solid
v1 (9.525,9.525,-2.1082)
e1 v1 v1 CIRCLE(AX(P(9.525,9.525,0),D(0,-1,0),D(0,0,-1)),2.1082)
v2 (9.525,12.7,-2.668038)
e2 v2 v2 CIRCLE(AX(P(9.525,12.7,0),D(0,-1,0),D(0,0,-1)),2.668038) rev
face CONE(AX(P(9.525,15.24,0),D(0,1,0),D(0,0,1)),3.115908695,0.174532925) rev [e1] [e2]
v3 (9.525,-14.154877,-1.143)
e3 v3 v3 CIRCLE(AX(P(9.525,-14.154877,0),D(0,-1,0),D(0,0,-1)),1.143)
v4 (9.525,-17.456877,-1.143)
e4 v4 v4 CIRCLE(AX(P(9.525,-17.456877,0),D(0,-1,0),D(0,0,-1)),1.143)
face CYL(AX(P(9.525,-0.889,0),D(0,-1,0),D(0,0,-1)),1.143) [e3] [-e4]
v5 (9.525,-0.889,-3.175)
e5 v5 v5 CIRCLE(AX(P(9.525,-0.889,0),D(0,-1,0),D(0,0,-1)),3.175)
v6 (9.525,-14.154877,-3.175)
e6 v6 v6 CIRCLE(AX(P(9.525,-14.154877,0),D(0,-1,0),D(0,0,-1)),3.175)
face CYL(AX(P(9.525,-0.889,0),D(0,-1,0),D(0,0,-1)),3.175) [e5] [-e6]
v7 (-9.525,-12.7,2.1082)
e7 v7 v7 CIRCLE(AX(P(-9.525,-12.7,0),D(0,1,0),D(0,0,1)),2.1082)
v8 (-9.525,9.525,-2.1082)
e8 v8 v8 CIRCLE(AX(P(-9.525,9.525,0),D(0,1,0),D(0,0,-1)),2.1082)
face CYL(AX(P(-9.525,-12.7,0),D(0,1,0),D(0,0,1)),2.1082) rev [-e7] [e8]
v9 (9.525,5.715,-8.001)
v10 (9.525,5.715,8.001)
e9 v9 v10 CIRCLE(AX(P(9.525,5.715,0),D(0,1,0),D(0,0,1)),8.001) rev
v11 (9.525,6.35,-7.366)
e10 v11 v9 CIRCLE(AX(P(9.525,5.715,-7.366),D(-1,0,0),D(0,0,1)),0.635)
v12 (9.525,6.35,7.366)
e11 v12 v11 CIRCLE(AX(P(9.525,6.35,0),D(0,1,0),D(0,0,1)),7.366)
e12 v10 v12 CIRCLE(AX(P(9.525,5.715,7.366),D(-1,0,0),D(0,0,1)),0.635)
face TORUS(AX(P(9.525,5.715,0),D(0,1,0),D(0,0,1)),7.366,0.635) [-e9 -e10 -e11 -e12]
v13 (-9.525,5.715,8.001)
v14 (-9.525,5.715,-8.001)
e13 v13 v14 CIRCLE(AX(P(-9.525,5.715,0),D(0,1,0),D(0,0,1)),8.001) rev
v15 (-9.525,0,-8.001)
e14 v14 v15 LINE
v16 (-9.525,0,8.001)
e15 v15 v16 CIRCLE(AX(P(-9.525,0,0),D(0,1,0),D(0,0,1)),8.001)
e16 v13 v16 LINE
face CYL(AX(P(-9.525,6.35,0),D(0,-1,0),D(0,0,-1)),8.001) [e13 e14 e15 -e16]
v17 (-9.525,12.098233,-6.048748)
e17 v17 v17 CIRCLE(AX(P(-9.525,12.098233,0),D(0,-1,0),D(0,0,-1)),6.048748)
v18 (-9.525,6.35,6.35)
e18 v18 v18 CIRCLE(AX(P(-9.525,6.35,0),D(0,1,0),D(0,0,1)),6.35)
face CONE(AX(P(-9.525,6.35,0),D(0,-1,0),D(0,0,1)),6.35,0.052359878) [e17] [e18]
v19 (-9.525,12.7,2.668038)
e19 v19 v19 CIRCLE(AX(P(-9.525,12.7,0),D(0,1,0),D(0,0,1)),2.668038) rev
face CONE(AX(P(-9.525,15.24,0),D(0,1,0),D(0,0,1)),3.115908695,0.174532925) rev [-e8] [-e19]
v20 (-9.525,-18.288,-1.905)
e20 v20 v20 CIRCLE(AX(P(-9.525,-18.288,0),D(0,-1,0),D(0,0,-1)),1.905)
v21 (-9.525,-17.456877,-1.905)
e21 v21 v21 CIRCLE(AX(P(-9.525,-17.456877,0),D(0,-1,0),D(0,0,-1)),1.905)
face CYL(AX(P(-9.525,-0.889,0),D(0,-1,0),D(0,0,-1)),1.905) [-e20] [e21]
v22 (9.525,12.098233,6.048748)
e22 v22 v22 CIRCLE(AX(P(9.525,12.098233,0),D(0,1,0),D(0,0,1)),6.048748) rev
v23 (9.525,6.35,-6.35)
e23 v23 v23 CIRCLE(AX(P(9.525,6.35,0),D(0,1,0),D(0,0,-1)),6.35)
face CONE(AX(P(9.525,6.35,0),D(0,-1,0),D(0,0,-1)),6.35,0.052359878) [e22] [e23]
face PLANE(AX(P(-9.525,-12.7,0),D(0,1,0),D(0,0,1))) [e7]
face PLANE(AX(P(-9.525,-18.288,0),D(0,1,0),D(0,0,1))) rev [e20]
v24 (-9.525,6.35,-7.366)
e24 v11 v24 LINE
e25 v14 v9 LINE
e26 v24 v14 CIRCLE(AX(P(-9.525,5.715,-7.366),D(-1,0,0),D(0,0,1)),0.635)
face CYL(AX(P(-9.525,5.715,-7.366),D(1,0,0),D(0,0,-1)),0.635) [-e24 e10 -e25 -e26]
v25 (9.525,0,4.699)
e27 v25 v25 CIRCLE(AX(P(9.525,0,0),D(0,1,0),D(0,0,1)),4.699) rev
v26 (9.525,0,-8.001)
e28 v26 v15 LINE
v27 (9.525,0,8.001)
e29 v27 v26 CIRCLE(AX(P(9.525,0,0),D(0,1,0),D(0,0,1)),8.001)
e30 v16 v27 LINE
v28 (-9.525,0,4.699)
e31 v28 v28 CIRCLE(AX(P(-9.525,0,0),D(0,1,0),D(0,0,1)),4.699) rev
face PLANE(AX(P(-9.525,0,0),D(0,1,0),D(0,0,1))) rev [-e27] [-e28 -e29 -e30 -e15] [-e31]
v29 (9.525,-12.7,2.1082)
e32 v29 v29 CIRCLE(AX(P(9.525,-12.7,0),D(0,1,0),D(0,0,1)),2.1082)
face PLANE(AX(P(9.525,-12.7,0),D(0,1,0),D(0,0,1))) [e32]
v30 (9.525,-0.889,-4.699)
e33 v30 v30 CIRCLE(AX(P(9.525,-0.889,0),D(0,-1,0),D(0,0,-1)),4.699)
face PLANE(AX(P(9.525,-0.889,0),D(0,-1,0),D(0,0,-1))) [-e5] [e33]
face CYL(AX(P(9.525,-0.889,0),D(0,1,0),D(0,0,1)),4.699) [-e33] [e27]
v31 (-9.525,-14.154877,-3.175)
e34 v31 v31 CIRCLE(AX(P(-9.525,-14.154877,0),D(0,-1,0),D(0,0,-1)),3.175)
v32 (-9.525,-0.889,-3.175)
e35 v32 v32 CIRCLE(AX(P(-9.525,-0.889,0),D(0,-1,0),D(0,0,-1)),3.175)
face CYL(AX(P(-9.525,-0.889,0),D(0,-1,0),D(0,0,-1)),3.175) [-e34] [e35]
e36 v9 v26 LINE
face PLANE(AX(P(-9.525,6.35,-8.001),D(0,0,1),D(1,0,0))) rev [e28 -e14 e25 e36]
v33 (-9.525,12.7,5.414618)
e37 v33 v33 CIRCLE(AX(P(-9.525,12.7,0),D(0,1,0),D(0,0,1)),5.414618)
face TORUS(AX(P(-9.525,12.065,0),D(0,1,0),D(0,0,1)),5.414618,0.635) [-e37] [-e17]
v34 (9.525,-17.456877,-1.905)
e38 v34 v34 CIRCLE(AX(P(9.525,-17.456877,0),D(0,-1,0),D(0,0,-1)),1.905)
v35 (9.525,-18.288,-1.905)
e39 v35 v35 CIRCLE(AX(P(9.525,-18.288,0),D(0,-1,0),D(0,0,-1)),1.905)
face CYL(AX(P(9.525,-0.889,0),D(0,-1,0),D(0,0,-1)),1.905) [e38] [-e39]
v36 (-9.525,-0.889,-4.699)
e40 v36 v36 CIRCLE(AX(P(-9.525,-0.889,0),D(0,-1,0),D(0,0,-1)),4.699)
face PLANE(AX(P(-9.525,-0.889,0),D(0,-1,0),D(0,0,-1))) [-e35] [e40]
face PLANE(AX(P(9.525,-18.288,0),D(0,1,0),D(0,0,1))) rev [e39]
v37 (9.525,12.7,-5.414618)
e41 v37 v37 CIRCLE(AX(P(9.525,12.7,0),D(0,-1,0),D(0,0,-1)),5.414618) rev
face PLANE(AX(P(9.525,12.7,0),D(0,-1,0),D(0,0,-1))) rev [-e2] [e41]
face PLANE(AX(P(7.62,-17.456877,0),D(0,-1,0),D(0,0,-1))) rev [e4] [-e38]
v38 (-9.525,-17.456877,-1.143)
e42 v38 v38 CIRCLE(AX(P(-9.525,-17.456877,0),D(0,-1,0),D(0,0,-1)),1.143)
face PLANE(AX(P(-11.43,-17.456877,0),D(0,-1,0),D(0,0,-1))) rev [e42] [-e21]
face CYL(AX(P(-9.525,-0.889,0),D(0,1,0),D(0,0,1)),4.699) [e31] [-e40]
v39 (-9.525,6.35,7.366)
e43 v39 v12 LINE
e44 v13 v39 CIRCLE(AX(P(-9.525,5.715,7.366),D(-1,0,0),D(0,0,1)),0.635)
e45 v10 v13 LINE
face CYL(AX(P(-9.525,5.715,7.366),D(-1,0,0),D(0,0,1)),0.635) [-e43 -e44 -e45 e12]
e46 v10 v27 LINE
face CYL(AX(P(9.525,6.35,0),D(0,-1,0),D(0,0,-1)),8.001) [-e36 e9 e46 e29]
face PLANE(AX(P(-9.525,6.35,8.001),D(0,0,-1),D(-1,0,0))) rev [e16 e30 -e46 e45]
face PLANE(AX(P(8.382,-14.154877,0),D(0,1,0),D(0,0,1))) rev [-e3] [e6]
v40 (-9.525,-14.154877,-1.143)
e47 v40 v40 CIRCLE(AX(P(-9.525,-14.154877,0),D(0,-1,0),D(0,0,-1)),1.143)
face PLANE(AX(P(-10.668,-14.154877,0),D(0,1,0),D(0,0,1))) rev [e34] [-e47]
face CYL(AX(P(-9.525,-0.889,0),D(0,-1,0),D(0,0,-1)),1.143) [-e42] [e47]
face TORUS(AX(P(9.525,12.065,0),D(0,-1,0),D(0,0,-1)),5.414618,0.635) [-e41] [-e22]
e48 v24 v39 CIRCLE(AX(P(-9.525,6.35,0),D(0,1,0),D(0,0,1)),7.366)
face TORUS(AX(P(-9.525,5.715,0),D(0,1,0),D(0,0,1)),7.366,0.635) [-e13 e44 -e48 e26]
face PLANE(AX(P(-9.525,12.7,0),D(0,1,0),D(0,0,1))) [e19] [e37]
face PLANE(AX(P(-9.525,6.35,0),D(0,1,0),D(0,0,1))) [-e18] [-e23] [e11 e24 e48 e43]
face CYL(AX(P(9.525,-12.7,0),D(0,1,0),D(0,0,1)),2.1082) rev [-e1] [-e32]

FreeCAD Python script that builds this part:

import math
import FreeCAD as App
import Part
import Sketcher
from FreeCAD import Vector
Q = App.Units.Quantity


def edges_at(feature, points):
    """Names of the edges that pass closest to the given points."""
    edges = feature.Shape.Edges
    near = lambda p: min(range(len(edges)), key=lambda i: edges[i].distToShape(Part.Vertex(*p))[0])
    return sorted({f"Edge{near(p) + 1}" for p in points})

doc = App.newDocument("Part")
body = doc.addObject("PartDesign::Body", "Body")

sketch1 = body.newObject("Sketcher::SketchObject", "Sketch")
sketch1.AttachmentSupport = (doc.getObject("XZ_Plane"), [""])
sketch1.MapMode = "FlatFace"
sketch1.addGeometry(Part.LineSegment(Vector(9.525, -8.001, 0), Vector(-9.525, -8.001, 0)), False)
sketch1.addGeometry(Part.ArcOfCircle(Part.Circle(Vector(-9.525, 0, 0), Vector(0, 0, 1), 8.001), math.radians(90), math.radians(270)), False)
sketch1.addGeometry(Part.LineSegment(Vector(-9.525, 8.001, 0), Vector(9.525, 8.001, 0)), False)
sketch1.addGeometry(Part.ArcOfCircle(Part.Circle(Vector(9.525, 0, 0), Vector(0, 0, 1), 8.001), math.radians(-90), math.radians(90)), False)
sketch1.addConstraint(Sketcher.Constraint("Tangent", 0, 2, 1, 2))
sketch1.addConstraint(Sketcher.Constraint("Tangent", 1, 1, 2, 1))
sketch1.addConstraint(Sketcher.Constraint("Tangent", 2, 2, 3, 2))
sketch1.addConstraint(Sketcher.Constraint("Tangent", 3, 1, 0, 1))
sketch1.addConstraint(Sketcher.Constraint("Horizontal", 0))
sketch1.addConstraint(Sketcher.Constraint("Horizontal", 2))
sketch1.addConstraint(Sketcher.Constraint("Symmetric", 1, 3, 3, 3, -1, 1))
sketch1.addConstraint(Sketcher.Constraint("Radius", 1, Q("0.315 in")))
sketch1.addConstraint(Sketcher.Constraint("DistanceX", 0, 2, 0, 1, Q("0.75 in")))
pad1 = body.newObject("PartDesign::Pad", "Pad")
pad1.Profile = sketch1
pad1.Length = Q("0.25 in")
pad1.Reversed = True

sketch2 = body.newObject("Sketcher::SketchObject", "Sketch001")
sketch2.AttachmentSupport = (doc.getObject("XZ_Plane"), [""])
sketch2.MapMode = "FlatFace"
sketch2.AttachmentOffset = App.Placement(Vector(0, 0, -0.25 * 25.4), App.Rotation())
sketch2.addGeometry(Part.Circle(Vector(-9.525, 0, 0), Vector(0, 0, 1), 6.35), False)
sketch2.addGeometry(Part.Circle(Vector(9.525, 0, 0), Vector(0, 0, 1), 6.35), False)
sketch2.addConstraint(Sketcher.Constraint("Equal", 0, 1))
sketch2.addConstraint(Sketcher.Constraint("Symmetric", 0, 3, 1, 3, -1, 1))
sketch2.addConstraint(Sketcher.Constraint("PointOnObject", 0, 3, -1))
sketch2.addConstraint(Sketcher.Constraint("Diameter", 0, Q("0.5 in")))
sketch2.addConstraint(Sketcher.Constraint("DistanceX", 0, 3, 1, 3, Q("0.75 in")))
pad2 = body.newObject("PartDesign::Pad", "Pad001")
pad2.Profile = sketch2
pad2.Length = Q("0.25 in")
pad2.Reversed = True
pad2.TaperAngle = -3

sketch3 = body.newObject("Sketcher::SketchObject", "Sketch002")
sketch3.AttachmentSupport = (doc.getObject("XZ_Plane"), [""])
sketch3.MapMode = "FlatFace"
sketch3.addGeometry(Part.Circle(Vector(-9.525, 0, 0), Vector(0, 0, 1), 4.699), False)
sketch3.addGeometry(Part.Circle(Vector(9.525, 0, 0), Vector(0, 0, 1), 4.699), False)
sketch3.addConstraint(Sketcher.Constraint("Equal", 0, 1))
sketch3.addConstraint(Sketcher.Constraint("Symmetric", 0, 3, 1, 3, -1, 1))
sketch3.addConstraint(Sketcher.Constraint("PointOnObject", 0, 3, -1))
sketch3.addConstraint(Sketcher.Constraint("Diameter", 0, Q("0.37 in")))
sketch3.addConstraint(Sketcher.Constraint("DistanceX", 0, 3, 1, 3, Q("0.75 in")))
pad3 = body.newObject("PartDesign::Pad", "Pad002")
pad3.Profile = sketch3
pad3.Length = Q("0.035 in")

sketch4 = body.newObject("Sketcher::SketchObject", "Sketch003")
sketch4.AttachmentSupport = (doc.getObject("XY_Plane"), [""])
sketch4.MapMode = "FlatFace"
sketch4.addGeometry(Part.LineSegment(Vector(9.525, -18.288, 0), Vector(9.525, -0.889, 0)), False)
sketch4.addGeometry(Part.LineSegment(Vector(9.525, -0.889, 0), Vector(6.35, -0.889, 0)), False)
sketch4.addGeometry(Part.LineSegment(Vector(6.35, -0.889, 0), Vector(6.35, -14.154877, 0)), False)
sketch4.addGeometry(Part.LineSegment(Vector(6.35, -14.154877, 0), Vector(8.382, -14.154877, 0)), False)
sketch4.addGeometry(Part.LineSegment(Vector(8.382, -14.154877, 0), Vector(8.382, -17.456877, 0)), False)
sketch4.addGeometry(Part.LineSegment(Vector(8.382, -17.456877, 0), Vector(7.62, -17.456877, 0)), False)
sketch4.addGeometry(Part.LineSegment(Vector(7.62, -17.456877, 0), Vector(7.62, -18.288, 0)), False)
sketch4.addGeometry(Part.LineSegment(Vector(7.62, -18.288, 0), Vector(9.525, -18.288, 0)), False)
sketch4.addGeometry(Part.LineSegment(Vector(9.525, -18.288, 0), Vector(9.525, -0.889, 0)), True)
sketch4.addConstraint(Sketcher.Constraint("Coincident", 0, 2, 1, 1))
sketch4.addConstraint(Sketcher.Constraint("Coincident", 1, 2, 2, 1))
sketch4.addConstraint(Sketcher.Constraint("Coincident", 2, 2, 3, 1))
sketch4.addConstraint(Sketcher.Constraint("Coincident", 3, 2, 4, 1))
sketch4.addConstraint(Sketcher.Constraint("Coincident", 4, 2, 5, 1))
sketch4.addConstraint(Sketcher.Constraint("Coincident", 5, 2, 6, 1))
sketch4.addConstraint(Sketcher.Constraint("Coincident", 6, 2, 7, 1))
sketch4.addConstraint(Sketcher.Constraint("Coincident", 7, 2, 0, 1))
sketch4.addConstraint(Sketcher.Constraint("Vertical", 0))
sketch4.addConstraint(Sketcher.Constraint("Horizontal", 1))
sketch4.addConstraint(Sketcher.Constraint("Vertical", 2))
sketch4.addConstraint(Sketcher.Constraint("Horizontal", 3))
sketch4.addConstraint(Sketcher.Constraint("Vertical", 4))
sketch4.addConstraint(Sketcher.Constraint("Horizontal", 5))
sketch4.addConstraint(Sketcher.Constraint("Vertical", 6))
sketch4.addConstraint(Sketcher.Constraint("Horizontal", 7))
sketch4.addConstraint(Sketcher.Constraint("Vertical", 8))
sketch4.addConstraint(Sketcher.Constraint("Coincident", 8, 1, 7, 2))
sketch4.addConstraint(Sketcher.Constraint("Horizontal", 1, 2, 8, 2))
sketch4.addConstraint(Sketcher.Constraint("DistanceX", 3, 1, 3, 2, Q("0.08 in")))
sketch4.addConstraint(Sketcher.Constraint("DistanceX", 5, 2, 5, 1, Q("0.03 in")))
sketch4.addConstraint(Sketcher.Constraint("DistanceY", 4, 2, 4, 1, Q("0.13 in")))
sketch4.addConstraint(Sketcher.Constraint("DistanceX", -1, 1, 5, 2, Q("0.3 in")))
sketch4.addConstraint(Sketcher.Constraint("DistanceX", 1, 2, 1, 1, Q("0.125 in")))
sketch4.addConstraint(Sketcher.Constraint("DistanceY", 0, 1, 0, 2, Q("0.685 in")))
sketch4.addConstraint(Sketcher.Constraint("DistanceY", 6, 2, -1, 1, Q("0.72 in")))
sketch4.addConstraint(Sketcher.Constraint("DistanceY", 2, 2, 2, 1, 13.265877))
revolution = body.newObject("PartDesign::Revolution", "Revolution")
revolution.Profile = sketch4
revolution.ReferenceAxis = (sketch4, ["Axis0"])
revolution.Angle = 360
doc.recompute()

linearpattern = body.newObject("PartDesign::LinearPattern", "LinearPattern")
linearpattern.Originals = [revolution]
linearpattern.Direction = (doc.getObject("X_Axis"), [""])
linearpattern.Mode = "offset"
linearpattern.Offset = Q("0.75 in")
linearpattern.Occurrences = 2
linearpattern.Reversed = True
body.Tip = linearpattern
doc.recompute()

fillet = body.newObject("PartDesign::Fillet", "Fillet")
fillet.Base = (linearpattern, edges_at(linearpattern, [
    (17.526, 6.35, 0),
    (0, 6.35, -8.001),
    (-15.542, 12.7, 0),
    (3.508, 12.7, 0),
    (-17.526, 6.35, 0),
    (0, 6.35, 8.001),
]))
fillet.Radius = Q("0.025 in")

sketch5 = body.newObject("Sketcher::SketchObject", "Sketch004")
sketch5.AttachmentSupport = (doc.getObject("XZ_Plane"), [""])
sketch5.MapMode = "FlatFace"
sketch5.AttachmentOffset = App.Placement(Vector(0, 0, -0.5 * 25.4), App.Rotation())
sketch5.addGeometry(Part.Circle(Vector(-9.525, 0, 0), Vector(0, 0, 1), 2.1082), False)
sketch5.addGeometry(Part.Circle(Vector(9.525, 0, 0), Vector(0, 0, 1), 2.1082), False)
sketch5.addConstraint(Sketcher.Constraint("Equal", 0, 1))
sketch5.addConstraint(Sketcher.Constraint("Symmetric", 0, 3, 1, 3, -1, 1))
sketch5.addConstraint(Sketcher.Constraint("PointOnObject", 0, 3, -1))
sketch5.addConstraint(Sketcher.Constraint("Diameter", 0, Q("0.166 in")))
sketch5.addConstraint(Sketcher.Constraint("DistanceX", 0, 3, 1, 3, Q("0.75 in")))
pocket1 = body.newObject("PartDesign::Pocket", "Pocket")
pocket1.Profile = sketch5
pocket1.Length = Q("1 in")
pocket1.Reversed = True

sketch6 = body.newObject("Sketcher::SketchObject", "Sketch005")
sketch6.AttachmentSupport = (doc.getObject("XY_Plane"), [""])
sketch6.MapMode = "FlatFace"
sketch6.addGeometry(Part.LineSegment(Vector(6.409091, 15.24, 0), Vector(7.4168, 9.525, 0)), False)
sketch6.addGeometry(Part.LineSegment(Vector(7.4168, 9.525, 0), Vector(8.424509, 15.24, 0)), False)
sketch6.addGeometry(Part.LineSegment(Vector(8.424509, 15.24, 0), Vector(6.409091, 15.24, 0)), False)
sketch6.addGeometry(Part.LineSegment(Vector(9.525, 9.525, 0), Vector(9.525, 15.24, 0)), True)
sketch6.addConstraint(Sketcher.Constraint("Coincident", 0, 2, 1, 1))
sketch6.addConstraint(Sketcher.Constraint("Coincident", 1, 2, 2, 1))
sketch6.addConstraint(Sketcher.Constraint("Coincident", 2, 2, 0, 1))
sketch6.addConstraint(Sketcher.Constraint("Horizontal", 2))
sketch6.addConstraint(Sketcher.Constraint("Vertical", 3))
sketch6.addConstraint(Sketcher.Constraint("Horizontal", 0, 2, 3, 1))
sketch6.addConstraint(Sketcher.Constraint("Horizontal", 2, 2, 3, 2))
sketch6.addConstraint(Sketcher.Constraint("Equal", 0, 1))
sketch6.addConstraint(Sketcher.Constraint("Angle", 0, Q("-80 deg")))
sketch6.addConstraint(Sketcher.Constraint("DistanceY", -1, 1, 1, 2, Q("0.6 in")))
sketch6.addConstraint(Sketcher.Constraint("DistanceY", 3, 1, 3, 2, Q("0.225 in")))
sketch6.addConstraint(Sketcher.Constraint("DistanceX", -1, 1, 0, 2, Q("0.292 in")))
sketch6.addConstraint(Sketcher.Constraint("DistanceX", -1, 1, 3, 1, Q("0.375 in")))
groove = body.newObject("PartDesign::Groove", "Groove")
groove.Profile = sketch6
groove.ReferenceAxis = (sketch6, ["Axis0"])
groove.Angle = 360
doc.recompute()

mirrored = body.newObject("PartDesign::Mirrored", "Mirrored")
mirrored.Originals = [groove]
mirrored.MirrorPlane = (doc.getObject("YZ_Plane"), [""])
body.Tip = mirrored

doc.recompute()
